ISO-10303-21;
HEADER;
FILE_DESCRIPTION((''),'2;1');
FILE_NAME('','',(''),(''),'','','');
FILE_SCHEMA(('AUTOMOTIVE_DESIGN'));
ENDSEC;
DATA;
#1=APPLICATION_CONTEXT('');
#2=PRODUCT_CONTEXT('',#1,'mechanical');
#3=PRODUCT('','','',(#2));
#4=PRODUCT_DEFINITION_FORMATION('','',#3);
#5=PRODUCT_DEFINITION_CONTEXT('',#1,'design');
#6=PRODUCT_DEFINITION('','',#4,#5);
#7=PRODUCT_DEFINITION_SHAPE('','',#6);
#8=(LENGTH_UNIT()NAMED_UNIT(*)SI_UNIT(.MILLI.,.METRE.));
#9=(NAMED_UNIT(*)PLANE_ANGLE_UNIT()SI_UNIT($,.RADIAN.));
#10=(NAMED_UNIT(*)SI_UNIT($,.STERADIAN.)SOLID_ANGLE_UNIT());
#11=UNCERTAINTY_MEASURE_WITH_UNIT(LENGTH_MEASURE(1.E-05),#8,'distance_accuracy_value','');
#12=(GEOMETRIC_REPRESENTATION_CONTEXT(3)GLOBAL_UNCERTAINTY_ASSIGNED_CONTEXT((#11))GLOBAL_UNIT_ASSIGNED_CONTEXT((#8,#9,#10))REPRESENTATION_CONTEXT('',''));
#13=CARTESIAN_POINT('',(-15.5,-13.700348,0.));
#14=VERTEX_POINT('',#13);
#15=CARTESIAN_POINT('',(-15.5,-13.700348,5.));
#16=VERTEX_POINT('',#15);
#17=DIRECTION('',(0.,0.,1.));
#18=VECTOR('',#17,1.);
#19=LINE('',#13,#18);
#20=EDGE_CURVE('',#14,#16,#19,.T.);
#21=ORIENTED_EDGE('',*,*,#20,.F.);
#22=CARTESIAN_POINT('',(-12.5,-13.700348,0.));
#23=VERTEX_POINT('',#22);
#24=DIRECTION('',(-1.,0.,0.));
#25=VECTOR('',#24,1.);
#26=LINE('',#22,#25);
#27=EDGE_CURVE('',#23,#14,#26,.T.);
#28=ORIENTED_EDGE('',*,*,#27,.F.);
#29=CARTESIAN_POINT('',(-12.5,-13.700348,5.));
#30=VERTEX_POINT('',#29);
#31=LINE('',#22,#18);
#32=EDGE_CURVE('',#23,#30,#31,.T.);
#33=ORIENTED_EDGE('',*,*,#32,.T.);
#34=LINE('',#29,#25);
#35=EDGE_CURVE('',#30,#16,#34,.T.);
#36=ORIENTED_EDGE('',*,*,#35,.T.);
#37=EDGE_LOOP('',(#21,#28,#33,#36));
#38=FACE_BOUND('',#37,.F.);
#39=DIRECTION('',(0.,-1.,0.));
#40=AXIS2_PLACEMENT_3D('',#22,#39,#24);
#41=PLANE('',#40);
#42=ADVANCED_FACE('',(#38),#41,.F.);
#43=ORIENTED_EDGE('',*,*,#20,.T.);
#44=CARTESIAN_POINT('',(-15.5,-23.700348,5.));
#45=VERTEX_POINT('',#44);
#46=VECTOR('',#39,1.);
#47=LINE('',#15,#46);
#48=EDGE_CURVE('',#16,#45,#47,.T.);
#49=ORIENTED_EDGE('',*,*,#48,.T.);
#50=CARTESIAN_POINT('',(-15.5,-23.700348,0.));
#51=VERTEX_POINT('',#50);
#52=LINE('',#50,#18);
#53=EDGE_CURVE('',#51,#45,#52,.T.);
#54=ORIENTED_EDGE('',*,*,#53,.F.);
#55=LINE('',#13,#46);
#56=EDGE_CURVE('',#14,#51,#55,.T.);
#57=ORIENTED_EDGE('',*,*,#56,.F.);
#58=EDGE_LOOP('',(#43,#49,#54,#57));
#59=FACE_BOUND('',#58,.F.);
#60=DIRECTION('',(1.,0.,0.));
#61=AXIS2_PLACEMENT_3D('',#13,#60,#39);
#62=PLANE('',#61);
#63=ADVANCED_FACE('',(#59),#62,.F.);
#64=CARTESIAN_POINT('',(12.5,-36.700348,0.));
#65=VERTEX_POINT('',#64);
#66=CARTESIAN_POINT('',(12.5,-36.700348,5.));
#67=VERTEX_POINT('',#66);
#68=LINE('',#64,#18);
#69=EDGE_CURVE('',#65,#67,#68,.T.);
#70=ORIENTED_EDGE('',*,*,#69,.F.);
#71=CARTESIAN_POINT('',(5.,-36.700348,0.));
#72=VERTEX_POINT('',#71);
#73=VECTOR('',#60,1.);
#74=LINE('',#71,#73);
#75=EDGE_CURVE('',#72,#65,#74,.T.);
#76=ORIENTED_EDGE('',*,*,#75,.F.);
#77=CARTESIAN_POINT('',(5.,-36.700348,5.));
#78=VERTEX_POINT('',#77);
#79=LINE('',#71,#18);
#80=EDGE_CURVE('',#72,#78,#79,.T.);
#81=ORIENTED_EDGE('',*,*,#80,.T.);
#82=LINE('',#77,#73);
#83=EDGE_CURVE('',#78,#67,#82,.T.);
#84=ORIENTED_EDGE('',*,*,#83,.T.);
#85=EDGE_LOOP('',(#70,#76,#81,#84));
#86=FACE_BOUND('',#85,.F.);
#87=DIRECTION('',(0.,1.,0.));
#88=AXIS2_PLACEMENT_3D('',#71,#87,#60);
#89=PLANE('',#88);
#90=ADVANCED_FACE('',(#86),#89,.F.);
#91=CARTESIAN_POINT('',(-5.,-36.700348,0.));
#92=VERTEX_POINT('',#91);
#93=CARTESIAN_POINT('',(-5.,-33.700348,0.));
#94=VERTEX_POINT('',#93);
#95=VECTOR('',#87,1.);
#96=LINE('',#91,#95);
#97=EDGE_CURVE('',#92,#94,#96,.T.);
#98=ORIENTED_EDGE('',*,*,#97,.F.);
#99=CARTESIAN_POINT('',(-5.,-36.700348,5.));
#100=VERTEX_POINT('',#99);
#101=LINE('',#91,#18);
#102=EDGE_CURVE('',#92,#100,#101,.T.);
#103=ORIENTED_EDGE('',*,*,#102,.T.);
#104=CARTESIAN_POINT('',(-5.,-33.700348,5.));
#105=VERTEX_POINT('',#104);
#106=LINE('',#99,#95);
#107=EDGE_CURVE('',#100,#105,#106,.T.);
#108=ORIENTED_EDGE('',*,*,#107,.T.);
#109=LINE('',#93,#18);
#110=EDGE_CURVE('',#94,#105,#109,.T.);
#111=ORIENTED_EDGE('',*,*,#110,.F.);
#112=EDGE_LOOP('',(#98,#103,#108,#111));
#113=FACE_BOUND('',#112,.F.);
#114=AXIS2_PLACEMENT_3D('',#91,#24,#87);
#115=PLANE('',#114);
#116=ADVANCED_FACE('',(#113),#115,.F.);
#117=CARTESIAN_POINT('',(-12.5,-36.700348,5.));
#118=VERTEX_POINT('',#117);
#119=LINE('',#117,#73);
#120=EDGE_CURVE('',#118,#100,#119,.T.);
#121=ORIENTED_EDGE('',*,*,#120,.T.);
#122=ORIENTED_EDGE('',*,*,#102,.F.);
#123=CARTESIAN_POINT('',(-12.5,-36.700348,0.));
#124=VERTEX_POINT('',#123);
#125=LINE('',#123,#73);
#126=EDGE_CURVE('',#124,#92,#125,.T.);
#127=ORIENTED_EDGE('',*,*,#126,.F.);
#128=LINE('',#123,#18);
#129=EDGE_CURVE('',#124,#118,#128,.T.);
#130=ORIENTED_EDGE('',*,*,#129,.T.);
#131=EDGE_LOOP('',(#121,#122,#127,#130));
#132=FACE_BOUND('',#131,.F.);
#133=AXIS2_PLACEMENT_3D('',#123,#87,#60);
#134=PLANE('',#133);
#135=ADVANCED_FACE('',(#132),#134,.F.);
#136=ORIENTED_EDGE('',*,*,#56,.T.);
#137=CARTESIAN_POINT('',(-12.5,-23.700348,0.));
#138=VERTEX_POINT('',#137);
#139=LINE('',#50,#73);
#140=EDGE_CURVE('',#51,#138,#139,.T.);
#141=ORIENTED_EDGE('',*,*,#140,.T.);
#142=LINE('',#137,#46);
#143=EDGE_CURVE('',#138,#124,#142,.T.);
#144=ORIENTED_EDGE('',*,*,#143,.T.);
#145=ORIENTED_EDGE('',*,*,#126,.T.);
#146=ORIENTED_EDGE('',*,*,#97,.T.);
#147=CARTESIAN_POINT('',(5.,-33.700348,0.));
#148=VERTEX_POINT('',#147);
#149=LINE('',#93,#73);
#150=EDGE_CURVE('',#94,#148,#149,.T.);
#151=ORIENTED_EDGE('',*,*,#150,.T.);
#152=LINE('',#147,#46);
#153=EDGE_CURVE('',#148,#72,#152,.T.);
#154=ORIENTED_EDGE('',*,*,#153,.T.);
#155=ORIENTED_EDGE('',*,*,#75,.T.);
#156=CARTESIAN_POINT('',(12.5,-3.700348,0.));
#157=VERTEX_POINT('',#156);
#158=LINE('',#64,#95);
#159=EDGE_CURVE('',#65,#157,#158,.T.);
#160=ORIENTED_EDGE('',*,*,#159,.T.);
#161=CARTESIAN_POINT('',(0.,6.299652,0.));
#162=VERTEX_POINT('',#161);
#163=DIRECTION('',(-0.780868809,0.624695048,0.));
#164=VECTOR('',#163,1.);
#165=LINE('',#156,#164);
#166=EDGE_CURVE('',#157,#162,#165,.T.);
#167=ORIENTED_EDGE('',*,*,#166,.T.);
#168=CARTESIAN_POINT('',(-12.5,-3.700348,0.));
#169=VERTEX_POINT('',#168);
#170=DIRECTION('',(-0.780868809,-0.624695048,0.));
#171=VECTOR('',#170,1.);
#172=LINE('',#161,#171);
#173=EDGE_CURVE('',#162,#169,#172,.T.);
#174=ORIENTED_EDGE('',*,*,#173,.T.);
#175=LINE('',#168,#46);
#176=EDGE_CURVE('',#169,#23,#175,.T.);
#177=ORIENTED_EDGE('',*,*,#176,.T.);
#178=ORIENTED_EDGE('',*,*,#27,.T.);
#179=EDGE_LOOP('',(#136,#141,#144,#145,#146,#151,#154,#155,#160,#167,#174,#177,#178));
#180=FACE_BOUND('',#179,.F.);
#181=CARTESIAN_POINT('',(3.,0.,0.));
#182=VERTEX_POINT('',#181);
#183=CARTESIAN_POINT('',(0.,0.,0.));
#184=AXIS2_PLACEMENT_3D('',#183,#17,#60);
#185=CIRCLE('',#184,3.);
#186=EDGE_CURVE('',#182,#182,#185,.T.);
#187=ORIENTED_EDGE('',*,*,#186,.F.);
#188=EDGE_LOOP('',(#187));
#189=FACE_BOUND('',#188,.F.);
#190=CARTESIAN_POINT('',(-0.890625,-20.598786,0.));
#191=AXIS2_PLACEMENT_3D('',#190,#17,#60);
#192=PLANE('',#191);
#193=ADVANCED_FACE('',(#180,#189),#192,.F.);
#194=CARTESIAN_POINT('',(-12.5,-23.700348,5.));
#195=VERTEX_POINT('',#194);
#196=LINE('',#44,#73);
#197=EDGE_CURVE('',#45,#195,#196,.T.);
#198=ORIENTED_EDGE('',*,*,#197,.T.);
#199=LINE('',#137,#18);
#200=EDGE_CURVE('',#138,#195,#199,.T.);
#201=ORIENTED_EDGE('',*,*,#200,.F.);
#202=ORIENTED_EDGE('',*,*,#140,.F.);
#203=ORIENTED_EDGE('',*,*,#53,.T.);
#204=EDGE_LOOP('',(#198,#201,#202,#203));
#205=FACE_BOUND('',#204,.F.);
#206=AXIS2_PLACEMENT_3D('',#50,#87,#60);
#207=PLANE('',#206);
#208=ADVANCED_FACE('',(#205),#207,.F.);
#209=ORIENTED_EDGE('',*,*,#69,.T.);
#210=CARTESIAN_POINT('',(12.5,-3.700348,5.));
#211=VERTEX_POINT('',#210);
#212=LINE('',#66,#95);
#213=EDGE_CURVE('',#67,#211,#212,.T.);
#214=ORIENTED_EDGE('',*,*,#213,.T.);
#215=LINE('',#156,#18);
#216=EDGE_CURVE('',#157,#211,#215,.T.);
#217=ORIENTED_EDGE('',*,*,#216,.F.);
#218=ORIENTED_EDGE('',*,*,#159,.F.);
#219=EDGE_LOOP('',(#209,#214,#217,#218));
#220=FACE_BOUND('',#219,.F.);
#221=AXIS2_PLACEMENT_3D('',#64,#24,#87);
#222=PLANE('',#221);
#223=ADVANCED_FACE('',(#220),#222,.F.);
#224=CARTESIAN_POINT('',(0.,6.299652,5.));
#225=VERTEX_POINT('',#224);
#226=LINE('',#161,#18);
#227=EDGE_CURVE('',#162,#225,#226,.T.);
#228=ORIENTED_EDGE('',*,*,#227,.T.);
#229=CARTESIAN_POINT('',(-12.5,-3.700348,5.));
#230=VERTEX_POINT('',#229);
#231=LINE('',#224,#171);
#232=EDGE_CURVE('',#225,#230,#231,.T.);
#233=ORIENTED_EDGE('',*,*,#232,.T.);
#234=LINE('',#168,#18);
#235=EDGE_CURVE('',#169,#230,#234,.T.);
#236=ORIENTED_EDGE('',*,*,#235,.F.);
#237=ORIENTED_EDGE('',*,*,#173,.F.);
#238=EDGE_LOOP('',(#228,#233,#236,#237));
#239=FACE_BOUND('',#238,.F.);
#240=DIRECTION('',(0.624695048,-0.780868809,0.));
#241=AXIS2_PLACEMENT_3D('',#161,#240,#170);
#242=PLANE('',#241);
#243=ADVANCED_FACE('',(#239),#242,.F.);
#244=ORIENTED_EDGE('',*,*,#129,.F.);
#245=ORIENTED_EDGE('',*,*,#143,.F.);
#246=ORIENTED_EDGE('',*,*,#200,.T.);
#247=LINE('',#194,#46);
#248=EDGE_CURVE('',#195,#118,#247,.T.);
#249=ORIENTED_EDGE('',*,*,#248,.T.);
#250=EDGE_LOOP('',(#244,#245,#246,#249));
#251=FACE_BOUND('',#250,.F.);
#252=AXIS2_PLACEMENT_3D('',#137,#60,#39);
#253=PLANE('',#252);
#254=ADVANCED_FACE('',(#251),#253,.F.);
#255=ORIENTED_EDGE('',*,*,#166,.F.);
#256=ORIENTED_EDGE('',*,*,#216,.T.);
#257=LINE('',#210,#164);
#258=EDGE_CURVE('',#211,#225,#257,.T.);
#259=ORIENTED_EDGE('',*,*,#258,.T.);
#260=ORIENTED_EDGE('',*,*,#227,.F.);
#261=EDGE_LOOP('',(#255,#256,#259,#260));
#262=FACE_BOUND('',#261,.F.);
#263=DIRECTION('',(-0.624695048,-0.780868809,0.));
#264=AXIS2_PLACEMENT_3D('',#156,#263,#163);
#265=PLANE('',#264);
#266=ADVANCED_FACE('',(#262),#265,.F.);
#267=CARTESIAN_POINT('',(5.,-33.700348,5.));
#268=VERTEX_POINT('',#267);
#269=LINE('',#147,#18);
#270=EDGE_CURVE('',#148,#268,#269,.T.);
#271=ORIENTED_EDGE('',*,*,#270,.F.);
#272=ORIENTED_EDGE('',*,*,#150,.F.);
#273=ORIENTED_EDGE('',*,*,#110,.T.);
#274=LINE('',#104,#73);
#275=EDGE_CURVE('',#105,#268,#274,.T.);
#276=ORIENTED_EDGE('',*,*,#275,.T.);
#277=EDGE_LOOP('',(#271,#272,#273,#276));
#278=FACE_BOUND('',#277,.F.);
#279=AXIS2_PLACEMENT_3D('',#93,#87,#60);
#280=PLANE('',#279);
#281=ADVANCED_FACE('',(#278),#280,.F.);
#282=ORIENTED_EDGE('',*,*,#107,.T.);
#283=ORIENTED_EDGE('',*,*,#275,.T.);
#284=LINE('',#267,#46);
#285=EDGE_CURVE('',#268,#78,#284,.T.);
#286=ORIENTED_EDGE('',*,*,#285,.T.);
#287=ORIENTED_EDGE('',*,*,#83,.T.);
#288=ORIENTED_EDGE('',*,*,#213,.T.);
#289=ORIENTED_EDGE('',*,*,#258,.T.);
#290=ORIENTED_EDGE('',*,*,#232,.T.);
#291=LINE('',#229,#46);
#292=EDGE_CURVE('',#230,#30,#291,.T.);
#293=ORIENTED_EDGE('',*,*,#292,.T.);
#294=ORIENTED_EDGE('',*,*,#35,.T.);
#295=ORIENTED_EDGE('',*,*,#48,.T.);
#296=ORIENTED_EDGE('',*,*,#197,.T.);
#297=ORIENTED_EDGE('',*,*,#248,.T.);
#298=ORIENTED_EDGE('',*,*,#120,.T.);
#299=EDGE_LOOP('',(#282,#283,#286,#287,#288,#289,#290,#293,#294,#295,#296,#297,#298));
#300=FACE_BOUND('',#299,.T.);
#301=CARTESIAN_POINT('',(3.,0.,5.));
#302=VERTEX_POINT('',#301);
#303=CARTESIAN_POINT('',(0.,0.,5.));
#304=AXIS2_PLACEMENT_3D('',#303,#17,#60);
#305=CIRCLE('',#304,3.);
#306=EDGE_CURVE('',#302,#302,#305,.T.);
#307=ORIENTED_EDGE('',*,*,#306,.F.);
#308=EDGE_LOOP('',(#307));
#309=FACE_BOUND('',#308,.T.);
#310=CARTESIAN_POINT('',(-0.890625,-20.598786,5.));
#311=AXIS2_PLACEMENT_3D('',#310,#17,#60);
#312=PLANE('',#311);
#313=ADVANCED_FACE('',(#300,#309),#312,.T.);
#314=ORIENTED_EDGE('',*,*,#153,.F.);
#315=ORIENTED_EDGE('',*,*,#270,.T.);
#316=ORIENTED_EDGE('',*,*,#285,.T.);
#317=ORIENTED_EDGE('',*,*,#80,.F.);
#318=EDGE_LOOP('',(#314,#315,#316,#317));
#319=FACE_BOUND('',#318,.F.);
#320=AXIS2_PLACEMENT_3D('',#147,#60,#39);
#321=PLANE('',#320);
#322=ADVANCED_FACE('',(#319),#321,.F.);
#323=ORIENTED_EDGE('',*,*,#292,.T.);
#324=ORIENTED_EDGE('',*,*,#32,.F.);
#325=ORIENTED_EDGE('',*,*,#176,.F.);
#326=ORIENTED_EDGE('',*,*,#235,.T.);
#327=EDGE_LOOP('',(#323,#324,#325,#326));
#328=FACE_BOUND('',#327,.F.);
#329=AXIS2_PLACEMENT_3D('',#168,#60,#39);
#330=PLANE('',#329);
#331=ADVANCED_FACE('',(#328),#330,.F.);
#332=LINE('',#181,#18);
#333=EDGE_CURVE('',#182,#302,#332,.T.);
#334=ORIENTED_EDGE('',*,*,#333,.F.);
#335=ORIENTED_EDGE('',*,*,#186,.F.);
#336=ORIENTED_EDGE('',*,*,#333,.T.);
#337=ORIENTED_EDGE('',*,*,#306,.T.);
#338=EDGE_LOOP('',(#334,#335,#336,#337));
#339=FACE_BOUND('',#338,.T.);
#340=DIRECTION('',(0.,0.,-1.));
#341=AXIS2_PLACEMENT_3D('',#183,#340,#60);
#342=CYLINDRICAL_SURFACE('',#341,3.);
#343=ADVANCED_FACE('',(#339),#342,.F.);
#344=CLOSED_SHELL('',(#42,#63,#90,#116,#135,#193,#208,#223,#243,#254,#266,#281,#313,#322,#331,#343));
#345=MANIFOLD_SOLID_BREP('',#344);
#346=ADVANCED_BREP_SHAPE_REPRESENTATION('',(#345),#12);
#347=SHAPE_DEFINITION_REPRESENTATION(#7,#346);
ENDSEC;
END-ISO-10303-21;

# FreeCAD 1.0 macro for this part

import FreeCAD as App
import Part
import Sketcher
from FreeCAD import Vector


def add_polygon(sketch, points):
    """Adds a closed chain of lines whose ends are joined by coincident constraints."""
    first, n = sketch.GeometryCount, len(points)
    for a, b in zip(points, points[1:] + points[:1]):
        sketch.addGeometry(Part.LineSegment(App.Vector(*a, 0), App.Vector(*b, 0)), False)
    for i in range(n):
        sketch.addConstraint(Sketcher.Constraint("Coincident", first + i, 2, first + (i + 1) % n, 1))

doc = App.newDocument("Part")
body = doc.addObject("PartDesign::Body", "Body")

# Sketch on XY plane
sketch1 = doc.addObject("Sketcher::SketchObject", "Sketch")
body.addObject(sketch1)
sketch1.AttachmentSupport = (doc.XY_Plane, [""])
sketch1.MapMode = "FlatFace"
add_polygon(sketch1, [(5, -36.700348), (12.5, -36.700348), (12.5, -3.700348), (0, 6.299652), (-12.5, -3.700348), (-12.5, -13.700348), (-15.5, -13.700348), (-15.5, -23.700348), (-12.5, -23.700348), (-12.5, -36.700348), (-5, -36.700348), (-5, -33.700348), (5, -33.700348)])  # lines 0-12
sketch1.addGeometry(Part.Circle(Vector(0, 0, 0), Vector(0, 0, 1), 3), False)  # 13
sketch1.addConstraint([
    Sketcher.Constraint("Horizontal", 0),
    Sketcher.Constraint("Vertical", 1),
    Sketcher.Constraint("Vertical", 4),
    Sketcher.Constraint("Horizontal", 5),
    Sketcher.Constraint("Vertical", 6),
    Sketcher.Constraint("Horizontal", 7),
    Sketcher.Constraint("Vertical", 8),
    Sketcher.Constraint("Horizontal", 9),
    Sketcher.Constraint("Vertical", 10),
    Sketcher.Constraint("Horizontal", 11),
    Sketcher.Constraint("Vertical", 12),
    Sketcher.Constraint("Coincident", 13, 3, -1, 1),
    Sketcher.Constraint("Symmetric", 1, 2, 3, 2, -2),
    Sketcher.Constraint("Symmetric", 0, 2, 8, 2, -2),
    Sketcher.Constraint("PointOnObject", 2, 2, -2),
    Sketcher.Constraint("Equal", 0, 9),
    Sketcher.Constraint("Equal", 11, 4),
    Sketcher.Constraint("Equal", 4, 6),
    Sketcher.Constraint("Equal", 7, 10),
    Sketcher.Constraint("Diameter", 13, 6.0),
    Sketcher.Constraint("DistanceX", 5, 2, 5, 1, 3.0),
    Sketcher.Constraint("DistanceX", 11, 1, 11, 2, 10.0),
    Sketcher.Constraint("DistanceY", 1, 1, 1, 2, 33.0),
    Sketcher.Constraint("DistanceX", 0, 1, 0, 2, 7.5),
    Sketcher.Constraint("DistanceY", 1, 2, 2, 2, 10.0),
    Sketcher.Constraint("DistanceY", 1, 2, -1, 1, 3.700348),
])
pad1 = doc.addObject("PartDesign::Pad", "Pad")
body.addObject(pad1)
pad1.Profile = sketch1
pad1.Length = 5

doc.recompute()
